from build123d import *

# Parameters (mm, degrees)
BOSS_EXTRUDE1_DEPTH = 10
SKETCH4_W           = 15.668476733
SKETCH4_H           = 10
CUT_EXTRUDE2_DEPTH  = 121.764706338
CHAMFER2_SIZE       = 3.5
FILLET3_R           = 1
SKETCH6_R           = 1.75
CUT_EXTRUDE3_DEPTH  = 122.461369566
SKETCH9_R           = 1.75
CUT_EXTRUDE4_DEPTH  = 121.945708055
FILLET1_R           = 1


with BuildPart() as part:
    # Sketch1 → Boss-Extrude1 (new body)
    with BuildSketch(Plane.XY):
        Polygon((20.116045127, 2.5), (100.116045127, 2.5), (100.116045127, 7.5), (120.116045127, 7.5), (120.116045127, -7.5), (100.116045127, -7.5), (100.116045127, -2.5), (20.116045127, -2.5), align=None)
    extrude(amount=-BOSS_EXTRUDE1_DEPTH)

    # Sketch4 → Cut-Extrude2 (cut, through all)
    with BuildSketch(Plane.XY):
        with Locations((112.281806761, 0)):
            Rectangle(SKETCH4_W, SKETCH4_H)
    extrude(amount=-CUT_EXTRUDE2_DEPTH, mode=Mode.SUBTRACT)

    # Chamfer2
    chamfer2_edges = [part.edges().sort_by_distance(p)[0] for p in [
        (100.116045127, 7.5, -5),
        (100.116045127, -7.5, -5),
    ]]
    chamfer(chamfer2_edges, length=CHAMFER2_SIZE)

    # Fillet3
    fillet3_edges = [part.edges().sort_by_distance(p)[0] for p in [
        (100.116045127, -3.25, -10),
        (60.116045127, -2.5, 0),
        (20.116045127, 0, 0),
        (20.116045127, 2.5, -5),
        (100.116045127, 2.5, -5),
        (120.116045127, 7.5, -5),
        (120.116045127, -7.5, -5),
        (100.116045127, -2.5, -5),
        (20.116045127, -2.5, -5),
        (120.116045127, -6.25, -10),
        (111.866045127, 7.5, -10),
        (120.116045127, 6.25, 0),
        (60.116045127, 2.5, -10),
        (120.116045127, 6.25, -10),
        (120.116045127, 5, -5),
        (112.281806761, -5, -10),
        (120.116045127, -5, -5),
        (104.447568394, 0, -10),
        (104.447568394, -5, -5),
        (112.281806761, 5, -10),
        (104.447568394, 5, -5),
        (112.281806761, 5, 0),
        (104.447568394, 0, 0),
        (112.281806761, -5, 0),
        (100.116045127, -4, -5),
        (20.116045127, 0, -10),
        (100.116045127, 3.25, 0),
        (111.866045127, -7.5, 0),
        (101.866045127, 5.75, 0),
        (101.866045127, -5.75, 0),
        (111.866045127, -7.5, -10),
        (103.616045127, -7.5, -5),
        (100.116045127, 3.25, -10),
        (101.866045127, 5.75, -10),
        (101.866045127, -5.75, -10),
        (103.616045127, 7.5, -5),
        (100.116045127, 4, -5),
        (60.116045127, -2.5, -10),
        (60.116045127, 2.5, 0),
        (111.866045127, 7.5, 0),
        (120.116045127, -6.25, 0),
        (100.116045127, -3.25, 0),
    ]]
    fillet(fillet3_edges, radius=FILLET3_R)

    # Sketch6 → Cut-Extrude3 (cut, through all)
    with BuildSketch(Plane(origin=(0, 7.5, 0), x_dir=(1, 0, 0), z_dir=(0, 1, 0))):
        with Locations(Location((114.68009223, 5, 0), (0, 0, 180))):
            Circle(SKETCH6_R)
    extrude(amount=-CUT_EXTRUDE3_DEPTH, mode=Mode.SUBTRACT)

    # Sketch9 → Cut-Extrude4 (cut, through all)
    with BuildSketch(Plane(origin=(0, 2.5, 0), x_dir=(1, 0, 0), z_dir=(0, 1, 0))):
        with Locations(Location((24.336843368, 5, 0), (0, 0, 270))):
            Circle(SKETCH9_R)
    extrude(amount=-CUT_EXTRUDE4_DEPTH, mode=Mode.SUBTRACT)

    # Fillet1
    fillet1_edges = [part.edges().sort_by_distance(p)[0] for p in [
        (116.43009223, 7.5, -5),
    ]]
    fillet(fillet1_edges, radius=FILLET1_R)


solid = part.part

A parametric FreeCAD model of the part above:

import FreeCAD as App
import Part
import Sketcher
from FreeCAD import Vector
Q = App.Units.Quantity


def edges_at(feature, points):
    """Names of the edges that pass closest to the given points."""
    edges = feature.Shape.Edges
    near = lambda p: min(range(len(edges)), key=lambda i: edges[i].distToShape(Part.Vertex(*p))[0])
    return sorted({f"Edge{near(p) + 1}" for p in points})

doc = App.newDocument("Part")
body = doc.addObject("PartDesign::Body", "Body")

sketch1 = body.newObject("Sketcher::SketchObject", "Sketch")
sketch1.AttachmentSupport = (doc.getObject("XY_Plane"), [""])
sketch1.MapMode = "FlatFace"
sketch1.addGeometry(Part.LineSegment(Vector(100, 2, 0), Vector(20, 2, 0)), False)
sketch1.addGeometry(Part.LineSegment(Vector(20, 2, 0), Vector(20, -2, 0)), False)
sketch1.addGeometry(Part.LineSegment(Vector(20, -2, 0), Vector(100, -2, 0)), False)
sketch1.addGeometry(Part.LineSegment(Vector(100, -2, 0), Vector(100, -8, 0)), False)
sketch1.addGeometry(Part.LineSegment(Vector(100, -8, 0), Vector(120, -8, 0)), False)
sketch1.addGeometry(Part.LineSegment(Vector(120, -8, 0), Vector(120, 8, 0)), False)
sketch1.addGeometry(Part.LineSegment(Vector(120, 8, 0), Vector(100, 8, 0)), False)
sketch1.addGeometry(Part.LineSegment(Vector(100, 8, 0), Vector(100, 2, 0)), False)
sketch1.addConstraint(Sketcher.Constraint("Coincident", 0, 2, 1, 1))
sketch1.addConstraint(Sketcher.Constraint("Coincident", 1, 2, 2, 1))
sketch1.addConstraint(Sketcher.Constraint("Coincident", 2, 2, 3, 1))
sketch1.addConstraint(Sketcher.Constraint("Coincident", 3, 2, 4, 1))
sketch1.addConstraint(Sketcher.Constraint("Coincident", 4, 2, 5, 1))
sketch1.addConstraint(Sketcher.Constraint("Coincident", 5, 2, 6, 1))
sketch1.addConstraint(Sketcher.Constraint("Coincident", 6, 2, 7, 1))
sketch1.addConstraint(Sketcher.Constraint("Coincident", 7, 2, 0, 1))
sketch1.addConstraint(Sketcher.Constraint("Horizontal", 0))
sketch1.addConstraint(Sketcher.Constraint("Vertical", 1))
sketch1.addConstraint(Sketcher.Constraint("Horizontal", 2))
sketch1.addConstraint(Sketcher.Constraint("Vertical", 3))
sketch1.addConstraint(Sketcher.Constraint("Horizontal", 4))
sketch1.addConstraint(Sketcher.Constraint("Vertical", 5))
sketch1.addConstraint(Sketcher.Constraint("Horizontal", 6))
sketch1.addConstraint(Sketcher.Constraint("Vertical", 7))
sketch1.addConstraint(Sketcher.Constraint("Symmetric", 3, 2, 6, 2, -1))
sketch1.addConstraint(Sketcher.Constraint("Equal", 1, 3))
sketch1.addConstraint(Sketcher.Constraint("Equal", 3, 7))
sketch1.addConstraint(Sketcher.Constraint("DistanceX", 0, 2, 0, 1, Q("80 mm")))
sketch1.addConstraint(Sketcher.Constraint("DistanceX", 4, 1, 4, 2, Q("20 mm")))
sketch1.addConstraint(Sketcher.Constraint("DistanceY", 1, 2, 1, 1, Q("5 mm")))
sketch1.addConstraint(Sketcher.Constraint("DistanceX", -1, 1, 0, 2, Q("20.116045 mm")))
pad1 = body.newObject("PartDesign::Pad", "Pad")
pad1.Profile = sketch1
pad1.Length = 10
pad1.Reversed = True

sketch2 = body.newObject("Sketcher::SketchObject", "Sketch001")
sketch2.AttachmentSupport = (doc.getObject("XY_Plane"), [""])
sketch2.MapMode = "FlatFace"
sketch2.addGeometry(Part.LineSegment(Vector(104, 5, 0), Vector(104, -5, 0)), False)
sketch2.addGeometry(Part.LineSegment(Vector(104, -5, 0), Vector(120, -5, 0)), False)
sketch2.addGeometry(Part.LineSegment(Vector(120, -5, 0), Vector(120, 5, 0)), False)
sketch2.addGeometry(Part.LineSegment(Vector(120, 5, 0), Vector(104, 5, 0)), False)
sketch2.addConstraint(Sketcher.Constraint("Coincident", 0, 2, 1, 1))
sketch2.addConstraint(Sketcher.Constraint("Coincident", 1, 2, 2, 1))
sketch2.addConstraint(Sketcher.Constraint("Coincident", 2, 2, 3, 1))
sketch2.addConstraint(Sketcher.Constraint("Coincident", 3, 2, 0, 1))
sketch2.addConstraint(Sketcher.Constraint("Vertical", 0))
sketch2.addConstraint(Sketcher.Constraint("Horizontal", 1))
sketch2.addConstraint(Sketcher.Constraint("Vertical", 2))
sketch2.addConstraint(Sketcher.Constraint("Horizontal", 3))
sketch2.addConstraint(Sketcher.Constraint("DistanceY", 0, 2, 0, 1, Q("10 mm")))
sketch2.addConstraint(Sketcher.Constraint("DistanceY", 0, 2, -1, 1, Q("5 mm")))
sketch2.addConstraint(Sketcher.Constraint("DistanceX", 1, 1, 1, 2, Q("15.668477 mm")))
sketch2.addConstraint(Sketcher.Constraint("DistanceX", -1, 1, 0, 2, Q("104.447568 mm")))
pocket1 = body.newObject("PartDesign::Pocket", "Pocket")
pocket1.Profile = sketch2
pocket1.Type = "ThroughAll"
doc.recompute()

chamfer = body.newObject("PartDesign::Chamfer", "Chamfer")
chamfer.Base = (pocket1, edges_at(pocket1, [(100.116, 7.5, -5), (100.116, -7.5, -5)]))
chamfer.Size = 3.5
doc.recompute()

fillet = body.newObject("PartDesign::Fillet", "Fillet")
fillet.Base = (chamfer, ["Edge1"])
fillet.UseAllEdges = True
fillet.Radius = 1

sketch3 = body.newObject("Sketcher::SketchObject", "Sketch002")
sketch3.AttachmentSupport = (doc.getObject("XZ_Plane"), [""])
sketch3.MapMode = "FlatFace"
sketch3.AttachmentOffset = App.Placement(Vector(0, 0, -7.5), App.Rotation())
sketch3.addGeometry(Part.Circle(Vector(114.7, -5, 0), Vector(0, 0, 1), 1.8), False)
sketch3.addConstraint(Sketcher.Constraint("Diameter", 0, Q("3.5 mm")))
sketch3.addConstraint(Sketcher.Constraint("DistanceY", 0, 3, -1, 1, Q("5 mm")))
sketch3.addConstraint(Sketcher.Constraint("DistanceX", -1, 1, 0, 3, Q("114.680092 mm")))
pocket2 = body.newObject("PartDesign::Pocket", "Pocket001")
pocket2.Profile = sketch3
pocket2.Type = "ThroughAll"
pocket2.Reversed = True

sketch4 = body.newObject("Sketcher::SketchObject", "Sketch003")
sketch4.AttachmentSupport = (doc.getObject("XZ_Plane"), [""])
sketch4.MapMode = "FlatFace"
sketch4.AttachmentOffset = App.Placement(Vector(0, 0, -2.5), App.Rotation())
sketch4.addGeometry(Part.Circle(Vector(24.3, -5, 0), Vector(0, 0, 1), 1.8), False)
sketch4.addConstraint(Sketcher.Constraint("Diameter", 0, Q("3.5 mm")))
sketch4.addConstraint(Sketcher.Constraint("DistanceY", 0, 3, -1, 1, Q("5 mm")))
sketch4.addConstraint(Sketcher.Constraint("DistanceX", -1, 1, 0, 3, Q("24.336843 mm")))
pocket3 = body.newObject("PartDesign::Pocket", "Pocket002")
pocket3.Profile = sketch4
pocket3.Type = "ThroughAll"
pocket3.Reversed = True
doc.recompute()

fillet2 = body.newObject("PartDesign::Fillet", "Fillet001")
fillet2.Base = (pocket3, edges_at(pocket3, [(116.43, 7.5, -5)]))
fillet2.Radius = 1

doc.recompute()
